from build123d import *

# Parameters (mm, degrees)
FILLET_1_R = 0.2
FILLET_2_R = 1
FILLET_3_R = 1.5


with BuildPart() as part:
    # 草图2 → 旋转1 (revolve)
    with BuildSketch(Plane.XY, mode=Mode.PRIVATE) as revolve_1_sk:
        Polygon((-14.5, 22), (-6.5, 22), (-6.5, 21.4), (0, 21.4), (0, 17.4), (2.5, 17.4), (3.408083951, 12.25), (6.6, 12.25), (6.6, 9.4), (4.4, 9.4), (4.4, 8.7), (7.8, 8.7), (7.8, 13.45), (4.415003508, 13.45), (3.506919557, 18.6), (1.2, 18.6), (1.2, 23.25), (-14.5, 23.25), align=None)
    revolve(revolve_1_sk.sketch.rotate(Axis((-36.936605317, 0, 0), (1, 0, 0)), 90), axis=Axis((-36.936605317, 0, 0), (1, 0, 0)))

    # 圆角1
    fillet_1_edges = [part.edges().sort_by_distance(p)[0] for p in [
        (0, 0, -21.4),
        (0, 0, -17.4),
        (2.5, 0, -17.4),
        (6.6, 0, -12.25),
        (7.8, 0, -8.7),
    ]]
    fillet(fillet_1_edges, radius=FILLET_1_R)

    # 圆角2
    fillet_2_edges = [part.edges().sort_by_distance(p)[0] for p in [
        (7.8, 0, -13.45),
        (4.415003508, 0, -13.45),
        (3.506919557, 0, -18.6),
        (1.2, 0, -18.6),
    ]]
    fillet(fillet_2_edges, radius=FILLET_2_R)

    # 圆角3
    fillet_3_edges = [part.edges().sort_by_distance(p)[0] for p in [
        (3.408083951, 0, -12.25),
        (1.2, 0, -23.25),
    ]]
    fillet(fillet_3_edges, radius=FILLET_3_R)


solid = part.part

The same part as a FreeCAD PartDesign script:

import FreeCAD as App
import Part
import Sketcher

V = App.Vector
Q = App.Units.Quantity


def edges_at(feature, points):
    """Names of the edges that pass closest to the given points."""
    edges = feature.Shape.Edges
    near = lambda p: min(range(len(edges)), key=lambda i: edges[i].distToShape(Part.Vertex(*p))[0])
    return sorted({f"Edge{near(p) + 1}" for p in points})

doc = App.newDocument("Part")
params = doc.addObject("Spreadsheet::Sheet", "Params")
for row, (alias, value) in enumerate([
    ("sketch1_width", "8 mm"),
    ("sketch1_height", "4 mm"),
    ("sketch1_width2", "6.5 mm"),
    ("sketch1_width3", "2.5 mm"),
    ("sketch1_width4", "2.2 mm"),
    ("revolution_angle", "360 deg"),
    ("fillet_radius", "0.2 mm"),
    ("fillet2_radius", "1 mm"),
    ("fillet3_radius", "1.5 mm"),
], start=1):
    params.set(f"A{row}", alias)
    params.set(f"B{row}", "=" + value)
    params.setAlias(f"B{row}", alias)

body = doc.addObject("PartDesign::Body", "Body")

# Sketch on XY plane
sketch1 = body.newObject("Sketcher::SketchObject", "Sketch")
sketch1.AttachmentSupport = (doc.getObject("XY_Plane"), [""])
sketch1.MapMode = "FlatFace"
sketch1.addGeometry(Part.LineSegment(V(-14.5, 22, 0), V(-6.5, 22, 0)), False)
sketch1.addGeometry(Part.LineSegment(V(-6.5, 22, 0), V(-6.5, 21.4, 0)), False)
sketch1.addGeometry(Part.LineSegment(V(-6.5, 21.4, 0), V(0, 21.4, 0)), False)
sketch1.addGeometry(Part.LineSegment(V(0, 21.4, 0), V(0, 17.4, 0)), False)
sketch1.addGeometry(Part.LineSegment(V(0, 17.4, 0), V(2.5, 17.4, 0)), False)
sketch1.addGeometry(Part.LineSegment(V(2.5, 17.4, 0), V(3.4, 12.2, 0)), False)
sketch1.addGeometry(Part.LineSegment(V(3.4, 12.2, 0), V(6.6, 12.2, 0)), False)
sketch1.addGeometry(Part.LineSegment(V(6.6, 12.2, 0), V(6.6, 9.4, 0)), False)
sketch1.addGeometry(Part.LineSegment(V(6.6, 9.4, 0), V(4.4, 9.4, 0)), False)
sketch1.addGeometry(Part.LineSegment(V(4.4, 9.4, 0), V(4.4, 8.7, 0)), False)
sketch1.addGeometry(Part.LineSegment(V(4.4, 8.7, 0), V(7.8, 8.7, 0)), False)
sketch1.addGeometry(Part.LineSegment(V(7.8, 8.7, 0), V(7.8, 13.4, 0)), False)
sketch1.addGeometry(Part.LineSegment(V(7.8, 13.4, 0), V(4.4, 13.4, 0)), False)
sketch1.addGeometry(Part.LineSegment(V(4.4, 13.4, 0), V(3.5, 18.6, 0)), False)
sketch1.addGeometry(Part.LineSegment(V(3.5, 18.6, 0), V(1.2, 18.6, 0)), False)
sketch1.addGeometry(Part.LineSegment(V(1.2, 18.6, 0), V(1.2, 23.2, 0)), False)
sketch1.addGeometry(Part.LineSegment(V(1.2, 23.2, 0), V(-14.5, 23.2, 0)), False)
sketch1.addGeometry(Part.LineSegment(V(-14.5, 23.2, 0), V(-14.5, 22, 0)), False)
sketch1.addConstraint(Sketcher.Constraint("Coincident", 0, 2, 1, 1))
sketch1.addConstraint(Sketcher.Constraint("Coincident", 1, 2, 2, 1))
sketch1.addConstraint(Sketcher.Constraint("Coincident", 2, 2, 3, 1))
sketch1.addConstraint(Sketcher.Constraint("Coincident", 3, 2, 4, 1))
sketch1.addConstraint(Sketcher.Constraint("Coincident", 4, 2, 5, 1))
sketch1.addConstraint(Sketcher.Constraint("Coincident", 5, 2, 6, 1))
sketch1.addConstraint(Sketcher.Constraint("Coincident", 6, 2, 7, 1))
sketch1.addConstraint(Sketcher.Constraint("Coincident", 7, 2, 8, 1))
sketch1.addConstraint(Sketcher.Constraint("Coincident", 8, 2, 9, 1))
sketch1.addConstraint(Sketcher.Constraint("Coincident", 9, 2, 10, 1))
sketch1.addConstraint(Sketcher.Constraint("Coincident", 10, 2, 11, 1))
sketch1.addConstraint(Sketcher.Constraint("Coincident", 11, 2, 12, 1))
sketch1.addConstraint(Sketcher.Constraint("Coincident", 12, 2, 13, 1))
sketch1.addConstraint(Sketcher.Constraint("Coincident", 13, 2, 14, 1))
sketch1.addConstraint(Sketcher.Constraint("Coincident", 14, 2, 15, 1))
sketch1.addConstraint(Sketcher.Constraint("Coincident", 15, 2, 16, 1))
sketch1.addConstraint(Sketcher.Constraint("Coincident", 16, 2, 17, 1))
sketch1.addConstraint(Sketcher.Constraint("Coincident", 17, 2, 0, 1))
sketch1.addConstraint(Sketcher.Constraint("Horizontal", 0))
sketch1.addConstraint(Sketcher.Constraint("Vertical", 1))
sketch1.addConstraint(Sketcher.Constraint("Horizontal", 2))
sketch1.addConstraint(Sketcher.Constraint("Vertical", 3))
sketch1.addConstraint(Sketcher.Constraint("Horizontal", 4))
sketch1.addConstraint(Sketcher.Constraint("Horizontal", 6))
sketch1.addConstraint(Sketcher.Constraint("Vertical", 7))
sketch1.addConstraint(Sketcher.Constraint("Horizontal", 8))
sketch1.addConstraint(Sketcher.Constraint("Vertical", 9))
sketch1.addConstraint(Sketcher.Constraint("Horizontal", 10))
sketch1.addConstraint(Sketcher.Constraint("Vertical", 11))
sketch1.addConstraint(Sketcher.Constraint("Horizontal", 12))
sketch1.addConstraint(Sketcher.Constraint("Horizontal", 14))
sketch1.addConstraint(Sketcher.Constraint("Vertical", 15))
sketch1.addConstraint(Sketcher.Constraint("Horizontal", 16))
sketch1.addConstraint(Sketcher.Constraint("Vertical", 17))
sketch1.addConstraint(Sketcher.Constraint("PointOnObject", 2, 2, -2))
sketch1.addConstraint(Sketcher.Constraint("Parallel", 5, 13))
sketch1.addConstraint(Sketcher.Constraint("Equal", 5, 13))
sketch1.addConstraint(Sketcher.Constraint("DistanceX", 0, 1, 0, 2, 8.0))
sketch1.addConstraint(Sketcher.Constraint("DistanceY", 3, 2, 3, 1, 4.0))
sketch1.addConstraint(Sketcher.Constraint("Angle", 5, Q("-80 deg")))
sketch1.addConstraint(Sketcher.Constraint("DistanceX", 2, 1, 2, 2, 6.5))
sketch1.addConstraint(Sketcher.Constraint("DistanceX", 4, 1, 4, 2, 2.5))
sketch1.addConstraint(Sketcher.Constraint("DistanceX", 8, 2, 8, 1, 2.2))
sketch1.addConstraint(Sketcher.Constraint("DistanceX", 10, 1, 10, 2, 3.4))
sketch1.addConstraint(Sketcher.Constraint("DistanceX", 16, 2, 16, 1, 15.7))
sketch1.addConstraint(Sketcher.Constraint("DistanceY", 1, 2, 1, 1, 0.6))
sketch1.addConstraint(Sketcher.Constraint("DistanceY", 9, 2, 9, 1, 0.7))
sketch1.addConstraint(Sketcher.Constraint("DistanceY", -1, 1, 0, 2, 22.0))
sketch1.addConstraint(Sketcher.Constraint("DistanceY", 7, 2, 4, 2, 8.0))
sketch1.addConstraint(Sketcher.Constraint("DistanceY", 7, 2, 7, 1, 2.85))
sketch1.addConstraint(Sketcher.Constraint("DistanceY", 11, 1, 11, 2, 4.75))
sketch1.addConstraint(Sketcher.Constraint("DistanceY", 15, 1, 15, 2, 4.65))
sketch1.addConstraint(Sketcher.Constraint("DistanceX", -1, 1, 6, 2, 6.6))
sketch1.addConstraint(Sketcher.Constraint("DistanceX", 14, 2, 14, 1, 2.30692))
sketch1.setExpression("Constraints[37]", "Params.sketch1_width")
sketch1.setExpression("Constraints[38]", "Params.sketch1_height")
sketch1.setExpression("Constraints[40]", "Params.sketch1_width2")
sketch1.setExpression("Constraints[41]", "Params.sketch1_width3")
sketch1.setExpression("Constraints[42]", "Params.sketch1_width4")
revolution = body.newObject("PartDesign::Revolution", "Revolution")
revolution.Profile = sketch1
revolution.ReferenceAxis = (sketch1, ["H_Axis"])
revolution.setExpression("Angle", "Params.revolution_angle")
doc.recompute()

fillet = body.newObject("PartDesign::Fillet", "Fillet")
fillet.Base = (revolution, edges_at(revolution, [
    (0, 0, -21.4),
    (0, 0, -17.4),
    (2.5, 0, -17.4),
    (6.6, 0, -12.25),
    (7.8, 0, -8.7),
]))
fillet.setExpression("Radius", "Params.fillet_radius")
doc.recompute()

fillet2 = body.newObject("PartDesign::Fillet", "Fillet001")
fillet2.Base = (fillet, edges_at(fillet, [
    (7.8, 0, -13.45),
    (4.415, 0, -13.45),
    (3.507, 0, -18.6),
    (1.2, 0, -18.6),
]))
fillet2.setExpression("Radius", "Params.fillet2_radius")
doc.recompute()

fillet3 = body.newObject("PartDesign::Fillet", "Fillet002")
fillet3.Base = (fillet2, edges_at(fillet2, [(3.408, 0, -12.25), (1.2, 0, -23.25)]))
fillet3.setExpression("Radius", "Params.fillet3_radius")

doc.recompute()
